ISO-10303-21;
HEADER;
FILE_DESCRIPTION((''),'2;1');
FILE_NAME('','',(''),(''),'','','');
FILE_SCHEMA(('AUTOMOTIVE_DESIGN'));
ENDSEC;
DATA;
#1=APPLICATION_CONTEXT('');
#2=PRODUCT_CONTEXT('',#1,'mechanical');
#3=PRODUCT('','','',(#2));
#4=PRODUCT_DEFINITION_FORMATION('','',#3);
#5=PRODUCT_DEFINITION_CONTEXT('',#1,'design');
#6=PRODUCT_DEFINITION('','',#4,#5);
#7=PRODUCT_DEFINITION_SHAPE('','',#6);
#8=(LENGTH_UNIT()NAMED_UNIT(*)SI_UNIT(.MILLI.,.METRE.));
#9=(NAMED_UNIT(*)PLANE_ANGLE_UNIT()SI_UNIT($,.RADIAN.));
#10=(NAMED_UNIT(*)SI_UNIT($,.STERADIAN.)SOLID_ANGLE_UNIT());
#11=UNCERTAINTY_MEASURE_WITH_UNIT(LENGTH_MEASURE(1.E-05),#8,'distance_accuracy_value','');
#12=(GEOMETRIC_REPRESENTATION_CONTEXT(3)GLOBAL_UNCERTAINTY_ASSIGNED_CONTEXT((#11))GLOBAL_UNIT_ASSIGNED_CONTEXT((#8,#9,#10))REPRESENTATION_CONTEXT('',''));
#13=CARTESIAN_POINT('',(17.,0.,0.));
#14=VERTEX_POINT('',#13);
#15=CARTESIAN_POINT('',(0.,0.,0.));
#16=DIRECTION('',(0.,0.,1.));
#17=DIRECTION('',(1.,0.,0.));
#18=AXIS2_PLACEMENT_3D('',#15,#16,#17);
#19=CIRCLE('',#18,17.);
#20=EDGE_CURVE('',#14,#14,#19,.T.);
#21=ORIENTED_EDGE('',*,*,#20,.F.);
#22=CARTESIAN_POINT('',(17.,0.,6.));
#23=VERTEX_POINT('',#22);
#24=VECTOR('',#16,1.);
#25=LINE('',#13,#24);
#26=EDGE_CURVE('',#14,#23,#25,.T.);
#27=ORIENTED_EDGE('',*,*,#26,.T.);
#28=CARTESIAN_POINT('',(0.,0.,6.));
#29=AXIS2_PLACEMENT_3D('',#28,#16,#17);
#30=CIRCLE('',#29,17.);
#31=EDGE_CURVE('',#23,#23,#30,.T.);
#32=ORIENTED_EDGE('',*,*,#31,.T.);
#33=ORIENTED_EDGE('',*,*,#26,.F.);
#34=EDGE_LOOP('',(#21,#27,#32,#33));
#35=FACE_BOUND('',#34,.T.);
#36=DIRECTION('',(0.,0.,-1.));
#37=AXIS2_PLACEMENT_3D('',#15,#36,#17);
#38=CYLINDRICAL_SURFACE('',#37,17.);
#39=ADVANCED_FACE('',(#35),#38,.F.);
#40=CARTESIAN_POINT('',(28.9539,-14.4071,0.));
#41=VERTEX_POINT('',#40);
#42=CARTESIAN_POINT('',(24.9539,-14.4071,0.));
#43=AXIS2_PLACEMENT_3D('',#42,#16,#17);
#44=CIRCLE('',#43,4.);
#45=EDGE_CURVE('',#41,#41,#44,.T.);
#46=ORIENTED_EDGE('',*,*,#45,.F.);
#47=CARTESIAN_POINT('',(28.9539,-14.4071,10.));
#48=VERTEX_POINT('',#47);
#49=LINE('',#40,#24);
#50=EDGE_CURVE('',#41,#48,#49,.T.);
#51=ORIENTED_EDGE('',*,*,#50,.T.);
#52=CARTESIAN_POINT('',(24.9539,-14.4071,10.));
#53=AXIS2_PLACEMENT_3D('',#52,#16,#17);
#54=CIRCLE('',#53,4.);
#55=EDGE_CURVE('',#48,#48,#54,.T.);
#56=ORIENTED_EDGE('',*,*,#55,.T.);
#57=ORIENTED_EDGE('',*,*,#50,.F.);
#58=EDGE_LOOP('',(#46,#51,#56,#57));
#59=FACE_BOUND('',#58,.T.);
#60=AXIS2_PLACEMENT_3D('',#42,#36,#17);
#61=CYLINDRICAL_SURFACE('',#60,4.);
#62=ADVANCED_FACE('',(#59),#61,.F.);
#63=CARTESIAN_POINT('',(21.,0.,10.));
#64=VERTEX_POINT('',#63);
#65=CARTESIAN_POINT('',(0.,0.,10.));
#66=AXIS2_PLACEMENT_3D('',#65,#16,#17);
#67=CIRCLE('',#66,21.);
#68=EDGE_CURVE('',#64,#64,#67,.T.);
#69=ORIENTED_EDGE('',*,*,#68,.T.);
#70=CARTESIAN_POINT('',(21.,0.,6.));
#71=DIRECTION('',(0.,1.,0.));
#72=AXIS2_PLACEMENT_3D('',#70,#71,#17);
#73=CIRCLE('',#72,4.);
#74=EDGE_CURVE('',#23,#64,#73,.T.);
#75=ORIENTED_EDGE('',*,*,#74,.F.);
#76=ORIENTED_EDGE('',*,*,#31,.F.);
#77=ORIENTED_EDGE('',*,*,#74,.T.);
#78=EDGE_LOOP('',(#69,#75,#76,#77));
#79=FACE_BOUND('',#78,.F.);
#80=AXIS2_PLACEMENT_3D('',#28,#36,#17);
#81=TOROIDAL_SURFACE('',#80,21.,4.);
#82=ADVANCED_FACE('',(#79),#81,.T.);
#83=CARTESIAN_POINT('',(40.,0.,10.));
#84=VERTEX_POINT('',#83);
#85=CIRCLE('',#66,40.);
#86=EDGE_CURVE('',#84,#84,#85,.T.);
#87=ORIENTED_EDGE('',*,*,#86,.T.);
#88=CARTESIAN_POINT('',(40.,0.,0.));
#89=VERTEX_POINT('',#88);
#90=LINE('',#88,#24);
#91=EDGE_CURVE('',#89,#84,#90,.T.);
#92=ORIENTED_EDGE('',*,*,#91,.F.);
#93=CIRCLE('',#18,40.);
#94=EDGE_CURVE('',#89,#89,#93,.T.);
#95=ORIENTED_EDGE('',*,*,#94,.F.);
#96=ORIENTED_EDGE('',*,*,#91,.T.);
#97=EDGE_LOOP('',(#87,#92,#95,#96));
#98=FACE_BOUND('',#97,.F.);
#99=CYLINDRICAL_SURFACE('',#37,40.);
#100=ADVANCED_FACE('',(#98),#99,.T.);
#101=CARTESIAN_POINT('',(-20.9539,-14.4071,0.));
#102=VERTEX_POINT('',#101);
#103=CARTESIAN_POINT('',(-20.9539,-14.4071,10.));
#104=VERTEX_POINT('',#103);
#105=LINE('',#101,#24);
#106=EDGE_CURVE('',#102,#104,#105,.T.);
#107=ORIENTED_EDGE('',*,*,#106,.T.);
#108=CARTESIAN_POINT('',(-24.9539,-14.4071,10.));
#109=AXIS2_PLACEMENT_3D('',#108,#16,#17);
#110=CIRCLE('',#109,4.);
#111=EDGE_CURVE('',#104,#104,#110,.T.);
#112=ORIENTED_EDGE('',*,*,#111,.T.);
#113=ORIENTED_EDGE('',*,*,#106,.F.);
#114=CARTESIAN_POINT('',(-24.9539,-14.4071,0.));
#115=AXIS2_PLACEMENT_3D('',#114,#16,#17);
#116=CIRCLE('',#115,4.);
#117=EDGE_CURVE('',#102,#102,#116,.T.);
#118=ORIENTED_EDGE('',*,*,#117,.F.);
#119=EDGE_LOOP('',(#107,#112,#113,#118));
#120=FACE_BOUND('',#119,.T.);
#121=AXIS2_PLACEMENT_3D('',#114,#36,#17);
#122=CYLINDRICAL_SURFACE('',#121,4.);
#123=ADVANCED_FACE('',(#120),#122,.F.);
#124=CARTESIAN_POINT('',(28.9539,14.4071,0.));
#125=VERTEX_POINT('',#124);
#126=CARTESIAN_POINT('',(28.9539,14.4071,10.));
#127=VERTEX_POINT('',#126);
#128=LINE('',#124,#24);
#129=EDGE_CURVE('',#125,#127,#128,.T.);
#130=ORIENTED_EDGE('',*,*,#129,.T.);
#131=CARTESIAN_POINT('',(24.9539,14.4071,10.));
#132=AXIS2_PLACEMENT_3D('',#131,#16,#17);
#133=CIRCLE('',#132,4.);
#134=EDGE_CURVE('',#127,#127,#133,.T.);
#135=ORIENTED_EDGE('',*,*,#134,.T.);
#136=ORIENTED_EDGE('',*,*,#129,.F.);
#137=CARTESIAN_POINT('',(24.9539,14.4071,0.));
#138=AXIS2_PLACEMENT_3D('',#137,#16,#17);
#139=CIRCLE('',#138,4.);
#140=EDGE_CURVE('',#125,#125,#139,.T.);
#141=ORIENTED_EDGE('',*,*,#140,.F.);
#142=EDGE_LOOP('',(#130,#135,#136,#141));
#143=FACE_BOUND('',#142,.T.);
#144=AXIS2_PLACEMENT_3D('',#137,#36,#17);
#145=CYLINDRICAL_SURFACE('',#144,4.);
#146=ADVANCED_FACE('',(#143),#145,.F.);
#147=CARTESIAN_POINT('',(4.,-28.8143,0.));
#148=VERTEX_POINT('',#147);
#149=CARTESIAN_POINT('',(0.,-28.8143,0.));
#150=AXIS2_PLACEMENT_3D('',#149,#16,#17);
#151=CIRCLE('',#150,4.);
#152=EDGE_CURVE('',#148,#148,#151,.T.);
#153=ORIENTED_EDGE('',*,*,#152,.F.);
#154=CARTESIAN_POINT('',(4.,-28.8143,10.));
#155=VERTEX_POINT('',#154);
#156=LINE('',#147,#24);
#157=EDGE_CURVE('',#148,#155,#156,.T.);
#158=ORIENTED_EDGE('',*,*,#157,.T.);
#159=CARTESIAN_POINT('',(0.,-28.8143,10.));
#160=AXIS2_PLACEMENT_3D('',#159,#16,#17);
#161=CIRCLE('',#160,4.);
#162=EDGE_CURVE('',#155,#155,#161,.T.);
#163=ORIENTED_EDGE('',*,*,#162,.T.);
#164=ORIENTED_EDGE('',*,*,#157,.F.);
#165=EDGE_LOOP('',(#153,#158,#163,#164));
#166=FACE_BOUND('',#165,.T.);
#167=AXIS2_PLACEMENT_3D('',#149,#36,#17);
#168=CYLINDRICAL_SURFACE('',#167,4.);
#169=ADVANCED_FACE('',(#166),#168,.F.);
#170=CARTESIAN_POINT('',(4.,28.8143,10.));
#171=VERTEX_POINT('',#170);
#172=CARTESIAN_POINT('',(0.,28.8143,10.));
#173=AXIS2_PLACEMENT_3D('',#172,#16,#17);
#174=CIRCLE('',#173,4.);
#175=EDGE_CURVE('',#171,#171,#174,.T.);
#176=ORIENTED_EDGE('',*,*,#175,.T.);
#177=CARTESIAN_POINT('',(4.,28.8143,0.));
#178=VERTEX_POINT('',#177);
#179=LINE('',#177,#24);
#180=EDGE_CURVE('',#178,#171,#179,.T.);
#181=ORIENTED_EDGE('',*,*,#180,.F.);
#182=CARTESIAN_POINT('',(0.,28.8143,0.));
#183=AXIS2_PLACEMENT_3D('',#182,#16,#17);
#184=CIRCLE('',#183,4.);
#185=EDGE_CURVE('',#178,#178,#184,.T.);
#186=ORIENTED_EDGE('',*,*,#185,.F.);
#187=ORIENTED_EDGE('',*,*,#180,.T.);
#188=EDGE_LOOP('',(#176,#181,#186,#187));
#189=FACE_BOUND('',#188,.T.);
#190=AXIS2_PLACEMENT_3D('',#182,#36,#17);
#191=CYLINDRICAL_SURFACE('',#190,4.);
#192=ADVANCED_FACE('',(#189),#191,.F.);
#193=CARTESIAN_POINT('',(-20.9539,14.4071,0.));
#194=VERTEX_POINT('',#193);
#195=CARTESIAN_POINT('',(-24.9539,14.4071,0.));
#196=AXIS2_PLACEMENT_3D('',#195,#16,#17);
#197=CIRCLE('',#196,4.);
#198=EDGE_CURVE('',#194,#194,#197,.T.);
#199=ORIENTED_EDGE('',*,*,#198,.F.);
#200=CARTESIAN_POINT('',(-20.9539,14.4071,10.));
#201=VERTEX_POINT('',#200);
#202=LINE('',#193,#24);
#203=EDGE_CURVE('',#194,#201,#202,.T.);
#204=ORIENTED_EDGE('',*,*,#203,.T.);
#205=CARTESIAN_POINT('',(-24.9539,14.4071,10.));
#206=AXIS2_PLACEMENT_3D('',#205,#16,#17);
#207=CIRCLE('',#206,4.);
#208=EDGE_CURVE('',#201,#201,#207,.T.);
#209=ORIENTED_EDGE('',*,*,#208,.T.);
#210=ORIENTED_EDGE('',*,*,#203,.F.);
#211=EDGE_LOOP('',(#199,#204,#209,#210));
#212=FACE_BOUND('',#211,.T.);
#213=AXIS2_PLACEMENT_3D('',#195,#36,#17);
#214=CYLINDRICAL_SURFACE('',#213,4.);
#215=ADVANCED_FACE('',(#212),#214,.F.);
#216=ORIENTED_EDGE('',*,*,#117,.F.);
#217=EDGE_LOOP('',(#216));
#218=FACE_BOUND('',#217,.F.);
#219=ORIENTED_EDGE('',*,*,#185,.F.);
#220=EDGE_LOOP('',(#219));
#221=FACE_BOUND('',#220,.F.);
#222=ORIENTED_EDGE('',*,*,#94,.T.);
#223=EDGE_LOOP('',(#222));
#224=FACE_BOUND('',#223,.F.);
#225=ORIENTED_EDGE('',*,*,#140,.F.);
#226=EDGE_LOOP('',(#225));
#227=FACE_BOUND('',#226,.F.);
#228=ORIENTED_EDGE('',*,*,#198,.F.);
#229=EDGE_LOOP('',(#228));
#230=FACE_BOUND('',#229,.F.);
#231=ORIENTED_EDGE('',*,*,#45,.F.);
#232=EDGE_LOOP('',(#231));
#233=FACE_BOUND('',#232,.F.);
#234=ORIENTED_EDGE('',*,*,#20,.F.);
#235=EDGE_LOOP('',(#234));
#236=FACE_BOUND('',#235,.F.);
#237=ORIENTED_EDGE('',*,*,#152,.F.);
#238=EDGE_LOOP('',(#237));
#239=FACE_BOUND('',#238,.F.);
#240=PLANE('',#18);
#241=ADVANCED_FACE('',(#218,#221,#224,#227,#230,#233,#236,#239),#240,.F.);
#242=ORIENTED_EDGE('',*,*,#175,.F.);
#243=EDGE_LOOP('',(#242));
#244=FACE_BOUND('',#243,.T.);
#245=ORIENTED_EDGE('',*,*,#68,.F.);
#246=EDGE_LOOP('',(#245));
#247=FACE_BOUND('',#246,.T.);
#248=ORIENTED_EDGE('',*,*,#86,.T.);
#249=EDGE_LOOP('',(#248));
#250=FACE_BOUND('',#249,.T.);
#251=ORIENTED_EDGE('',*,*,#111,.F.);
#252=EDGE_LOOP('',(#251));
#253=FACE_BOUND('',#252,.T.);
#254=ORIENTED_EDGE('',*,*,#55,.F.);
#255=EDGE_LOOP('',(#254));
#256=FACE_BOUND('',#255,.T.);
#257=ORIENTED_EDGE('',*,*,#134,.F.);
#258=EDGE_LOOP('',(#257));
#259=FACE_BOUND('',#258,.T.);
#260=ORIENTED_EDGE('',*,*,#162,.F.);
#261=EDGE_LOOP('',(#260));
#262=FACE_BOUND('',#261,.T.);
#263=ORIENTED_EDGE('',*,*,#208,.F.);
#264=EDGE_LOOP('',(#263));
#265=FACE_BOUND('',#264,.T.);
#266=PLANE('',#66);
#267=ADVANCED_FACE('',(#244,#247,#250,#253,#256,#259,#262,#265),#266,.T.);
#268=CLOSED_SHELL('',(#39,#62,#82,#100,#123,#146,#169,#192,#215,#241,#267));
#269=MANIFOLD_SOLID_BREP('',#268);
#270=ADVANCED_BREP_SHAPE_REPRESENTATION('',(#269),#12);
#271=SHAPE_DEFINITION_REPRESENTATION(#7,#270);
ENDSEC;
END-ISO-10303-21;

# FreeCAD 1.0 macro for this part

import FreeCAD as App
import Part
import Sketcher


def edges_at(feature, points):
    """Names of the edges that pass closest to the given points."""
    edges = feature.Shape.Edges
    near = lambda p: min(range(len(edges)), key=lambda i: edges[i].distToShape(Part.Vertex(*p))[0])
    return sorted({f"Edge{near(p) + 1}" for p in points})

doc = App.newDocument("Part")
body = doc.addObject("PartDesign::Body", "Body")

# Sketch on XY plane
sketch1 = doc.addObject("Sketcher::SketchObject", "Sketch")
body.addObject(sketch1)
sketch1.AttachmentSupport = (doc.XY_Plane, [""])
sketch1.MapMode = "FlatFace"
sketch1.addGeometry([
    Part.Circle(App.Vector(0, 0, 0), App.Vector(0, 0, 1), 40),  # 0
    Part.Circle(App.Vector(-25, -14.4, 0), App.Vector(0, 0, 1), 4),  # 1
    Part.Circle(App.Vector(0, -28.8, 0), App.Vector(0, 0, 1), 4),  # 2
    Part.Circle(App.Vector(25, -14.4, 0), App.Vector(0, 0, 1), 4),  # 3
    Part.Circle(App.Vector(-25, 14.4, 0), App.Vector(0, 0, 1), 4),  # 4
    Part.Circle(App.Vector(0, 0, 0), App.Vector(0, 0, 1), 17),  # 5
    Part.Circle(App.Vector(25, 14.4, 0), App.Vector(0, 0, 1), 4),  # 6
    Part.Circle(App.Vector(0, 28.8, 0), App.Vector(0, 0, 1), 4),  # 7
], False)
sketch1.addConstraint([
    Sketcher.Constraint("Coincident", 0, 3, -1, 1),
    Sketcher.Constraint("Coincident", 5, 3, -1, 1),
    Sketcher.Constraint("Equal", 1, 2),
    Sketcher.Constraint("Equal", 2, 3),
    Sketcher.Constraint("Equal", 3, 4),
    Sketcher.Constraint("Equal", 4, 6),
    Sketcher.Constraint("Equal", 6, 7),
    Sketcher.Constraint("Symmetric", 3, 3, 4, 3, -1, 1),
    Sketcher.Constraint("Symmetric", 1, 3, 6, 3, -1, 1),
    Sketcher.Constraint("Symmetric", 2, 3, 7, 3, -1, 1),
    Sketcher.Constraint("Symmetric", 1, 3, 3, 3, -2),
    Sketcher.Constraint("PointOnObject", 2, 3, -2),
    Sketcher.Constraint("Diameter", 0, 80.0),
    Sketcher.Constraint("Diameter", 1, 8.0),
    Sketcher.Constraint("Diameter", 5, 34.0),
    Sketcher.Constraint("DistanceX", 1, 3, -1, 1, 24.954),
    Sketcher.Constraint("DistanceY", 1, 3, -1, 1, 14.407),
    Sketcher.Constraint("DistanceY", 2, 3, -1, 1, 28.8143),
])
pad1 = doc.addObject("PartDesign::Pad", "Pad")
body.addObject(pad1)
pad1.Profile = sketch1
pad1.Length = 10
doc.recompute()

fillet = doc.addObject("PartDesign::Fillet", "Fillet")
body.addObject(fillet)
fillet.Base = (pad1, edges_at(pad1, [(-17, 0, 10)]))
fillet.Radius = 4

doc.recompute()
